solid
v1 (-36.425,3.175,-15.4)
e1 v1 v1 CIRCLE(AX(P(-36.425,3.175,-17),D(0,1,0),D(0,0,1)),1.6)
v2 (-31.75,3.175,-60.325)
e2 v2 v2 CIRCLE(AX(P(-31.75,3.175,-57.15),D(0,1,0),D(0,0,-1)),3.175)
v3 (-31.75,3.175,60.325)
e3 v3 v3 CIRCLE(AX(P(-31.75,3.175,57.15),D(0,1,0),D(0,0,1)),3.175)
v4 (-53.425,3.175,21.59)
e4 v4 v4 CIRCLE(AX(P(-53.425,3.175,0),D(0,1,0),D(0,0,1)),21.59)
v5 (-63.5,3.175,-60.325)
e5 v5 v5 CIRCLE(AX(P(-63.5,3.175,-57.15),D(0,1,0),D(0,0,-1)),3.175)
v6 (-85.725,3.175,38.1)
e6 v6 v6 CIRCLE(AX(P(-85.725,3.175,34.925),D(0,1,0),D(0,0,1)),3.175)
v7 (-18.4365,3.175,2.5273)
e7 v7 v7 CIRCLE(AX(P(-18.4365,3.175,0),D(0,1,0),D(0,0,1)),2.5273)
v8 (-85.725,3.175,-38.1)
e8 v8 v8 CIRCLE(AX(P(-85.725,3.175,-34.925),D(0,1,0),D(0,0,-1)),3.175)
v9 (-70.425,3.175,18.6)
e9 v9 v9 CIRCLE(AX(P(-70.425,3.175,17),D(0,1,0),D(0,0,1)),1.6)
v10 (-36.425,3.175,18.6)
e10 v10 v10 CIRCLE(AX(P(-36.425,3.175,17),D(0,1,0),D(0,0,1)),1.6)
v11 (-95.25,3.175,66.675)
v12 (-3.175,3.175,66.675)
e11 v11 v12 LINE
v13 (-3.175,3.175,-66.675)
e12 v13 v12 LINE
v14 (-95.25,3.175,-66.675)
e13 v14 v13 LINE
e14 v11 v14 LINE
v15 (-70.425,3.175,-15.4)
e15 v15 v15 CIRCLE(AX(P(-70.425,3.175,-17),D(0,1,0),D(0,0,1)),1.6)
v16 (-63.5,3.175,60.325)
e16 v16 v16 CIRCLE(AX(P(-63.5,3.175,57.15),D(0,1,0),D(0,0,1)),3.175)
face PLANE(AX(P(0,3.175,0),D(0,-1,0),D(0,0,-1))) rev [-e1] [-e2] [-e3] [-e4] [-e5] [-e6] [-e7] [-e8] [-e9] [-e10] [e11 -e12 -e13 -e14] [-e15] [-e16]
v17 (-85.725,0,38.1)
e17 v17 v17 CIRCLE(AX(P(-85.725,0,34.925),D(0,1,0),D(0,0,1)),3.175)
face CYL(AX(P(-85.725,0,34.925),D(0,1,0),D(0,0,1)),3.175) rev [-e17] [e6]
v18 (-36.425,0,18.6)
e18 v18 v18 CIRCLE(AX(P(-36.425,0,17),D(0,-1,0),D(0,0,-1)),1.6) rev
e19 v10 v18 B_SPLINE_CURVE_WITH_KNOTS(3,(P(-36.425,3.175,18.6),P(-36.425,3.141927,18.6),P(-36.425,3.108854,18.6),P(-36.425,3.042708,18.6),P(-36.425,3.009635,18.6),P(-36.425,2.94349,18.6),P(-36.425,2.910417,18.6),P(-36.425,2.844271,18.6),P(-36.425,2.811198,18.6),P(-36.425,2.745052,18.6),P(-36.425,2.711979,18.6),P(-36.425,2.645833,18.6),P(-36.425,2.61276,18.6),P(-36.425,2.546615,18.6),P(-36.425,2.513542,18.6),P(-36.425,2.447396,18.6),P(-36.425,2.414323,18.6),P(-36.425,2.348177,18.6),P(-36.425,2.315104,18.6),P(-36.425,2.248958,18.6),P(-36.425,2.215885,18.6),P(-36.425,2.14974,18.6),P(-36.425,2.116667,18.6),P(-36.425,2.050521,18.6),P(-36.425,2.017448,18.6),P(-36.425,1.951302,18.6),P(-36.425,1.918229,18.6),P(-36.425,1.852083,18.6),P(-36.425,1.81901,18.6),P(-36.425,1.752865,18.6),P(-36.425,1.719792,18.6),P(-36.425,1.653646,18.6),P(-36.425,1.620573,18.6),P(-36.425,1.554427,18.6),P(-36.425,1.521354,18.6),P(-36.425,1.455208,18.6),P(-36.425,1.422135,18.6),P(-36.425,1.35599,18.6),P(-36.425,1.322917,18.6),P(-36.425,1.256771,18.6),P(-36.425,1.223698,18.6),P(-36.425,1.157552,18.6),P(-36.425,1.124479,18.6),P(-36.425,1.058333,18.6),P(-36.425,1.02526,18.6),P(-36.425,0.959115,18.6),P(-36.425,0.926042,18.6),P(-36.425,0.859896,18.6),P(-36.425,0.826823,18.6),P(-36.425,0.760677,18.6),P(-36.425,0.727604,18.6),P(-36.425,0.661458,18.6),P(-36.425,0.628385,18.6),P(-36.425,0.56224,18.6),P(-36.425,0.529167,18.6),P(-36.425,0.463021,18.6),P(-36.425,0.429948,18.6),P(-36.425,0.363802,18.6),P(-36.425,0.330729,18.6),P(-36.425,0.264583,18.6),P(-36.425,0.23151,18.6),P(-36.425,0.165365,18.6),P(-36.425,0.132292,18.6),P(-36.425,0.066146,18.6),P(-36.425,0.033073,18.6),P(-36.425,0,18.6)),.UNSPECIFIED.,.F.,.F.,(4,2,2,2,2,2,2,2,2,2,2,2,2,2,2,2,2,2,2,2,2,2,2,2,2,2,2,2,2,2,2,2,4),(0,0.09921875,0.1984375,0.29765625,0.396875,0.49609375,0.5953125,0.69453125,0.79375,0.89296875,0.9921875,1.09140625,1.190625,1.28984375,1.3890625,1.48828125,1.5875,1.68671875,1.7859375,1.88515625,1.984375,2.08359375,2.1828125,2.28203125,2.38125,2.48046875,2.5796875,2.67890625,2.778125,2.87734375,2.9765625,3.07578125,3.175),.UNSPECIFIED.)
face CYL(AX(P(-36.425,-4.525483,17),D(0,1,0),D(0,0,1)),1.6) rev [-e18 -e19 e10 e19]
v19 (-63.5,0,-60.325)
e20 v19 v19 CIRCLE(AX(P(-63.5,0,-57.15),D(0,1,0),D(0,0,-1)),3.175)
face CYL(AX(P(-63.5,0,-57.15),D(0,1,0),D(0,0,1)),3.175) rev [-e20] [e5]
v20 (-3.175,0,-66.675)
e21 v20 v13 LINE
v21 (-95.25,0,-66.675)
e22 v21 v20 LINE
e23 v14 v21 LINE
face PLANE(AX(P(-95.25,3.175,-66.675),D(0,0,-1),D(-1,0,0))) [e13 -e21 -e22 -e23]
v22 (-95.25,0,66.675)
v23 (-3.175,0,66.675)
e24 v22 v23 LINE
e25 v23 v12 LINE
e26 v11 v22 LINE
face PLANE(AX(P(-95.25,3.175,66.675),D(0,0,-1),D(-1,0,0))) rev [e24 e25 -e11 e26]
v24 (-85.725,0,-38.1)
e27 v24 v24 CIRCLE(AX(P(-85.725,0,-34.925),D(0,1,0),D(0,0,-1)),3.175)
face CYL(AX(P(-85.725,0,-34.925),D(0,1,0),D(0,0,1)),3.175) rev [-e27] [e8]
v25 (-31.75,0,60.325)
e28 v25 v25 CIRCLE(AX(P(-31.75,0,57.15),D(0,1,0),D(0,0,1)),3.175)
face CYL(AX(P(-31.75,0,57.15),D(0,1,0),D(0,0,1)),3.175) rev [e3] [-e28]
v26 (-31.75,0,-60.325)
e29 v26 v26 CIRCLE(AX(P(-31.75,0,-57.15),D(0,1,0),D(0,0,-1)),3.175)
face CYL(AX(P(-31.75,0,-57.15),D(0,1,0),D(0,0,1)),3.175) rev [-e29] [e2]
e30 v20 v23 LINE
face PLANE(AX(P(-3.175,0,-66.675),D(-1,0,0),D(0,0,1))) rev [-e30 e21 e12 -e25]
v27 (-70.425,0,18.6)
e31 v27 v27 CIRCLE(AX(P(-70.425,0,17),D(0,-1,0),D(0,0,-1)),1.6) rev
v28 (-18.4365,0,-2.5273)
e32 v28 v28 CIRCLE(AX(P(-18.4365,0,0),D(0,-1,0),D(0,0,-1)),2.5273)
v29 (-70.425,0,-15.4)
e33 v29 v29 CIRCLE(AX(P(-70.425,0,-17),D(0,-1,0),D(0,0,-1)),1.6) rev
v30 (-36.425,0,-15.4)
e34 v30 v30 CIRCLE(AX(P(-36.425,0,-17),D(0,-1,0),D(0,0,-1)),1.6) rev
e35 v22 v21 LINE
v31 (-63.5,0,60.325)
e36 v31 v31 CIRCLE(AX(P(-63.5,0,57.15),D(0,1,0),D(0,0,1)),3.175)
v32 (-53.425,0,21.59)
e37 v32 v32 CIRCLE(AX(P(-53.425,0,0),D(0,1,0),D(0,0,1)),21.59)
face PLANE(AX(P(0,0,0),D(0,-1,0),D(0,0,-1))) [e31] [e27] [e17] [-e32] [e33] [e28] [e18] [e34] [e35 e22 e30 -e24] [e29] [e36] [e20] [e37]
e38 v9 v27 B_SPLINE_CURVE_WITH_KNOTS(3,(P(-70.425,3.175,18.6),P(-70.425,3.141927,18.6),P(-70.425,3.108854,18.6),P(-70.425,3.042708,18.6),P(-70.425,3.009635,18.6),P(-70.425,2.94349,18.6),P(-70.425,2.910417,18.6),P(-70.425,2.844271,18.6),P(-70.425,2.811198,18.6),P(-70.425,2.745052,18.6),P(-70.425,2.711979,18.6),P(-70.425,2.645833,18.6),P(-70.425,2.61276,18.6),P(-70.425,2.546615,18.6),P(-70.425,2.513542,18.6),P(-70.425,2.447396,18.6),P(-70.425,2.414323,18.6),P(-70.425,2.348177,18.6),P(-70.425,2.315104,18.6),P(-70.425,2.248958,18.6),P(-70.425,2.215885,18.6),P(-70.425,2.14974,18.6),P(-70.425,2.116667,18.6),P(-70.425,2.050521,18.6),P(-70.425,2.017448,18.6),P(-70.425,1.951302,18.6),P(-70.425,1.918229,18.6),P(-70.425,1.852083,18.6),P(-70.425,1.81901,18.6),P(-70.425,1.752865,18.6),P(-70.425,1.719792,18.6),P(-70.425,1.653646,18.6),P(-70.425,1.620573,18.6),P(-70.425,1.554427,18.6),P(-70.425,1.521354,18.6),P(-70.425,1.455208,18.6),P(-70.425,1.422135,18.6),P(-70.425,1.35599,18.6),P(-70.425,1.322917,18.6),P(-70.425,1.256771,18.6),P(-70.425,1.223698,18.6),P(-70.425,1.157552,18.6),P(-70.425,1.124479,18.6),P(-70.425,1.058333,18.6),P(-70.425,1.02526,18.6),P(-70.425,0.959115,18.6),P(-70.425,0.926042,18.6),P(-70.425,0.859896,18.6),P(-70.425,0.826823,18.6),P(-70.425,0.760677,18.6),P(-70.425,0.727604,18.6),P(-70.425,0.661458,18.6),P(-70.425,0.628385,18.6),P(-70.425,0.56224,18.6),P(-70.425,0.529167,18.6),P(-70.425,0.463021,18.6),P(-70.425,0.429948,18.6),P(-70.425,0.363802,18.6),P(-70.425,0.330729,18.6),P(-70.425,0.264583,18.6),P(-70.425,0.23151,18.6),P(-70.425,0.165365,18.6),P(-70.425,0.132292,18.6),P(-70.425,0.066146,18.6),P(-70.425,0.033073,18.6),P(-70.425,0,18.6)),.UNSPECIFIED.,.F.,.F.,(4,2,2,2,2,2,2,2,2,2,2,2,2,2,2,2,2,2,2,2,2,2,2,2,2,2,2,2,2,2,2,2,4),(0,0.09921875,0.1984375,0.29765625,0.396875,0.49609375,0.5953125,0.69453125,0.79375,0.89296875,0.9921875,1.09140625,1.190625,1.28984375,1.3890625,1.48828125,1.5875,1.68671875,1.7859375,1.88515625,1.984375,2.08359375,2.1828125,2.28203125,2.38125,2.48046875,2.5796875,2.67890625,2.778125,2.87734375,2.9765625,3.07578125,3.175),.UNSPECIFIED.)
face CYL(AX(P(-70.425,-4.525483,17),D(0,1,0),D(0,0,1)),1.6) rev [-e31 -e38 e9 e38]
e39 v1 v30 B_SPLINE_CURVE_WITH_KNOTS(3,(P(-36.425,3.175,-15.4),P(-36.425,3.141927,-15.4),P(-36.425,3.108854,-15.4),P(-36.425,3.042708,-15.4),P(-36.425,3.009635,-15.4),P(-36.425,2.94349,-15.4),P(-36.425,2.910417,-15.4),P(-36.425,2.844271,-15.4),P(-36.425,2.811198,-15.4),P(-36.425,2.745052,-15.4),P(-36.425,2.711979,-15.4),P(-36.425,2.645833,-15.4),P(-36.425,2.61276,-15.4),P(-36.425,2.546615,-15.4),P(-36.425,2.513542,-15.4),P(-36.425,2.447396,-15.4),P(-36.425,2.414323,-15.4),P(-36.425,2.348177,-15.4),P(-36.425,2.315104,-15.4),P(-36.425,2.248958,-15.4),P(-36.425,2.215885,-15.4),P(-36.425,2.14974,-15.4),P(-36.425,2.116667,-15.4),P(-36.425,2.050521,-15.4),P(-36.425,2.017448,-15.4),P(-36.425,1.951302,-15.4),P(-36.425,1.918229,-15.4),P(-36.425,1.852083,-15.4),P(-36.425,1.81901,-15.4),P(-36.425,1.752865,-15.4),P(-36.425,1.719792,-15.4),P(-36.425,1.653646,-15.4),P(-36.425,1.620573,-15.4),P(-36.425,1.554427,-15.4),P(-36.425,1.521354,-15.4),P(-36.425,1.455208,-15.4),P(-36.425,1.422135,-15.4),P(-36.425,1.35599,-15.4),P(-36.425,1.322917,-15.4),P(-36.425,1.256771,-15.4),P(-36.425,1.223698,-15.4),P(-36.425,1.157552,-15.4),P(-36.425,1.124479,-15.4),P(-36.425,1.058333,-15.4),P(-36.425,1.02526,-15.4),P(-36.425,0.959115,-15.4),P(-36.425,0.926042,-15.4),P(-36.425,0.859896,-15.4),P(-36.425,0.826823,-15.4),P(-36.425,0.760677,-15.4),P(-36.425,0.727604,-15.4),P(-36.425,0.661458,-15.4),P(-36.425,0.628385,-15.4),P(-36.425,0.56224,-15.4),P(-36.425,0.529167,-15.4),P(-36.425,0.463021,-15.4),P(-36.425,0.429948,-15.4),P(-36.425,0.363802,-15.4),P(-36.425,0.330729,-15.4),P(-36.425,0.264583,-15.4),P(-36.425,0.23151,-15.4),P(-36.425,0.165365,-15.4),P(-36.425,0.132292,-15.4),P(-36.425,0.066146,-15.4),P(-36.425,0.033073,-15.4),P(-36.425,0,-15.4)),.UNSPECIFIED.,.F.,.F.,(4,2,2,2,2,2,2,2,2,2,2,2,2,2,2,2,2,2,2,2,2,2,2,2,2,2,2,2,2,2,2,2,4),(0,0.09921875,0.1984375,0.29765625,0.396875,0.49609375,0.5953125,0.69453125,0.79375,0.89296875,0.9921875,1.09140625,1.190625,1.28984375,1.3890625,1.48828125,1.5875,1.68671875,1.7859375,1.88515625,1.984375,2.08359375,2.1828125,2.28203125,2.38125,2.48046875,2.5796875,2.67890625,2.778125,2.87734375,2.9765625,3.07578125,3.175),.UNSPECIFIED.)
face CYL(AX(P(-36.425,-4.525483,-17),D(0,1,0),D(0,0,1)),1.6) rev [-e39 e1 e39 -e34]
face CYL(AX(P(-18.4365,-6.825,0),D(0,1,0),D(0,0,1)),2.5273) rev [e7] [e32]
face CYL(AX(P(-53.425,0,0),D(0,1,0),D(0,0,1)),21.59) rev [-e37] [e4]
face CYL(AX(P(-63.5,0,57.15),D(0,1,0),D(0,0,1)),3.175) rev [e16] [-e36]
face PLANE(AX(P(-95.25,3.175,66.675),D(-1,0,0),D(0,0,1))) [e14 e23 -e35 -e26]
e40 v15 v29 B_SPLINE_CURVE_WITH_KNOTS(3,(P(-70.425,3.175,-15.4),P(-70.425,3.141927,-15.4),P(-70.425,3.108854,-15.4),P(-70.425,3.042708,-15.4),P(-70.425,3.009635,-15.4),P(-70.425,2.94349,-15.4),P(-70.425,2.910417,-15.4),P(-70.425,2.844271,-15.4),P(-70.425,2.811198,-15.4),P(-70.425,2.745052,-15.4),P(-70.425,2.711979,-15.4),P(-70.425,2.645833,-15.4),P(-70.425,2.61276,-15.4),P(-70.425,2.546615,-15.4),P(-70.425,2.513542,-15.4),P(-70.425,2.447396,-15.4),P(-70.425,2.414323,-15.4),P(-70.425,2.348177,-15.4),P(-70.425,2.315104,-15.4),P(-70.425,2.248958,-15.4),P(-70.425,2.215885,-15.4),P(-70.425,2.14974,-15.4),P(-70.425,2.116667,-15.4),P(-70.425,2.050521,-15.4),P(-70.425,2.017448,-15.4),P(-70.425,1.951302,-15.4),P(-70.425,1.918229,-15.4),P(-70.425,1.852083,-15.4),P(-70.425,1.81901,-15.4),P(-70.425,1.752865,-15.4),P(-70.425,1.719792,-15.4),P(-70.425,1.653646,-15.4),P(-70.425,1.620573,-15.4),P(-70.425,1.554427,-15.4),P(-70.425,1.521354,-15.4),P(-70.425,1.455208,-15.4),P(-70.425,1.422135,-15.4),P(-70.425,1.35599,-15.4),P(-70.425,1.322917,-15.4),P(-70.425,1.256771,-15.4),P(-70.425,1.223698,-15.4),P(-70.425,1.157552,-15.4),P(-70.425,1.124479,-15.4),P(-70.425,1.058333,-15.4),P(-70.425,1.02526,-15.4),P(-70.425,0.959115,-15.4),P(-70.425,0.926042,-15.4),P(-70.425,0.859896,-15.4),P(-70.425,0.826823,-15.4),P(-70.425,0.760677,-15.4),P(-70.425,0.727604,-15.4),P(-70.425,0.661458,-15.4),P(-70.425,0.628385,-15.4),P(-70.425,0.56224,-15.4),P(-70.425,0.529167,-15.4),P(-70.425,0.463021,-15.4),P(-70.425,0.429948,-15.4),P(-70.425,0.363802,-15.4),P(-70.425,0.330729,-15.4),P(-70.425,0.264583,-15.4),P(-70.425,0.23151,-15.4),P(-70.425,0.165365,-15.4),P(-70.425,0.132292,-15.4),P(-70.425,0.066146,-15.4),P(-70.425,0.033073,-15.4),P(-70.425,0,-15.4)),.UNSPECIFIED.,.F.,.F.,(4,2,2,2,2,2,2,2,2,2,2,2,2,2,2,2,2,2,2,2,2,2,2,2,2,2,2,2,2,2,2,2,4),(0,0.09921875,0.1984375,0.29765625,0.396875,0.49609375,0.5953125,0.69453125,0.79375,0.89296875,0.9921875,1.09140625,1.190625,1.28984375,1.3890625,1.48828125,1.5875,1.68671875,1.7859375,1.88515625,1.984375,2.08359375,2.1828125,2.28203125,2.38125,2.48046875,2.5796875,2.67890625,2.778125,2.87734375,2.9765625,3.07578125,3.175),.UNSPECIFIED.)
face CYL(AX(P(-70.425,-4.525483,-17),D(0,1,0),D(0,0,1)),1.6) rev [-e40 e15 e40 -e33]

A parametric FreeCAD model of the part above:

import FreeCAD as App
import Part
import Sketcher
Q = App.Units.Quantity


def add_polygon(sketch, points):
    """Adds a closed chain of lines whose ends are joined by coincident constraints."""
    first, n = sketch.GeometryCount, len(points)
    for a, b in zip(points, points[1:] + points[:1]):
        sketch.addGeometry(Part.LineSegment(App.Vector(*a, 0), App.Vector(*b, 0)), False)
    for i in range(n):
        sketch.addConstraint(Sketcher.Constraint("Coincident", first + i, 2, first + (i + 1) % n, 1))

doc = App.newDocument("Part")
body = doc.addObject("PartDesign::Body", "Body")

# Sketch on XZ plane
sketch1 = body.newObject("Sketcher::SketchObject", "Sketch")
sketch1.AttachmentSupport = (doc.getObject("XZ_Plane"), [""])
sketch1.MapMode = "FlatFace"
add_polygon(sketch1, [(-95, -67), (-95, 67), (95, 67), (95, -67)])  # lines 0-3
sketch1.addConstraint(Sketcher.Constraint("Vertical", 0))
sketch1.addConstraint(Sketcher.Constraint("Horizontal", 1))
sketch1.addConstraint(Sketcher.Constraint("Vertical", 2))
sketch1.addConstraint(Sketcher.Constraint("Horizontal", 3))
sketch1.addConstraint(Sketcher.Constraint("Symmetric", 0, 2, 2, 2, -1, 1))
sketch1.addConstraint(Sketcher.Constraint("DistanceX", 1, 1, 1, 2, Q("7.5 in")))
sketch1.addConstraint(Sketcher.Constraint("DistanceY", 0, 1, 0, 2, Q("5.25 in")))
pad1 = body.newObject("PartDesign::Pad", "Pad")
pad1.Profile = sketch1
pad1.Length = Q("0.125 in")
pad1.Reversed = True

# Sketch on XZ plane
sketch2 = body.newObject("Sketcher::SketchObject", "Sketch001")
sketch2.AttachmentSupport = (doc.getObject("XZ_Plane"), [""])
sketch2.MapMode = "FlatFace"
sketch2.AttachmentOffset = App.Placement(App.Vector(0, 0, -0.125 * 25.4), App.Rotation())
sketch2.addGeometry(Part.Circle(App.Vector(-53, 0, 0), App.Vector(0, 0, 1), 22), False)
sketch2.addConstraint(Sketcher.Constraint("PointOnObject", 0, 3, -1))
sketch2.addConstraint(Sketcher.Constraint("Diameter", 0, Q("1.7 in")))
sketch2.addConstraint(Sketcher.Constraint("DistanceX", 0, 3, -1, 1, Q("53.425 mm")))
pocket1 = body.newObject("PartDesign::Pocket", "Pocket")
pocket1.Profile = sketch2
pocket1.Type = "ThroughAll"
pocket1.Reversed = True

# Sketch on XZ plane
sketch3 = body.newObject("Sketcher::SketchObject", "Sketch002")
sketch3.AttachmentSupport = (doc.getObject("XZ_Plane"), [""])
sketch3.MapMode = "FlatFace"
sketch3.AttachmentOffset = App.Placement(App.Vector(0, 0, -0.125 * 25.4), App.Rotation())
sketch3.addGeometry(Part.Circle(App.Vector(-70.4, -17, 0), App.Vector(0, 0, 1), 1.6), False)
sketch3.addGeometry(Part.Circle(App.Vector(-36.4, -17, 0), App.Vector(0, 0, 1), 1.6), False)
sketch3.addGeometry(Part.Circle(App.Vector(-70.4, 17, 0), App.Vector(0, 0, 1), 1.6), False)
sketch3.addGeometry(Part.Circle(App.Vector(-36.4, 17, 0), App.Vector(0, 0, 1), 1.6), False)
sketch3.addConstraint(Sketcher.Constraint("Equal", 0, 1))
sketch3.addConstraint(Sketcher.Constraint("Equal", 1, 2))
sketch3.addConstraint(Sketcher.Constraint("Equal", 2, 3))
sketch3.addConstraint(Sketcher.Constraint("Symmetric", 0, 3, 2, 3, -1))
sketch3.addConstraint(Sketcher.Constraint("Symmetric", 1, 3, 3, 3, -1))
sketch3.addConstraint(Sketcher.Constraint("Horizontal", 0, 3, 1, 3))
sketch3.addConstraint(Sketcher.Constraint("Diameter", 0, Q("3.2 mm")))
sketch3.addConstraint(Sketcher.Constraint("DistanceX", 0, 3, -1, 1, Q("70.425 mm")))
sketch3.addConstraint(Sketcher.Constraint("DistanceY", 0, 3, -1, 1, Q("17 mm")))
sketch3.addConstraint(Sketcher.Constraint("DistanceX", 1, 3, -1, 1, Q("36.425 mm")))
pocket2 = body.newObject("PartDesign::Pocket", "Pocket001")
pocket2.Profile = sketch3
pocket2.Length = Q("0.125 in")
pocket2.Reversed = True

# Sketch on XZ plane
sketch4 = body.newObject("Sketcher::SketchObject", "Sketch003")
sketch4.AttachmentSupport = (doc.getObject("XZ_Plane"), [""])
sketch4.MapMode = "FlatFace"
sketch4.AttachmentOffset = App.Placement(App.Vector(0, 0, -0.125 * 25.4), App.Rotation())
sketch4.addGeometry(Part.Circle(App.Vector(-18.4, 0, 0), App.Vector(0, 0, 1), 2.5), False)
sketch4.addConstraint(Sketcher.Constraint("PointOnObject", 0, 3, -1))
sketch4.addConstraint(Sketcher.Constraint("Diameter", 0, Q("0.199 in")))
sketch4.addConstraint(Sketcher.Constraint("DistanceX", 0, 3, -1, 1, Q("18.4365 mm")))
pocket3 = body.newObject("PartDesign::Pocket", "Pocket002")
pocket3.Profile = sketch4
pocket3.Length = 10
pocket3.Reversed = True

# Sketch on XZ plane
sketch5 = body.newObject("Sketcher::SketchObject", "Sketch004")
sketch5.AttachmentSupport = (doc.getObject("XZ_Plane"), [""])
sketch5.MapMode = "FlatFace"
sketch5.AttachmentOffset = App.Placement(App.Vector(0, 0, -0.125 * 25.4), App.Rotation())
add_polygon(sketch5, [(-3, -67), (-3, 67), (95, 67), (95, -67)])  # lines 0-3
sketch5.addConstraint(Sketcher.Constraint("Vertical", 0))
sketch5.addConstraint(Sketcher.Constraint("Horizontal", 1))
sketch5.addConstraint(Sketcher.Constraint("Vertical", 2))
sketch5.addConstraint(Sketcher.Constraint("Horizontal", 3))
sketch5.addConstraint(Sketcher.Constraint("DistanceY", 0, 1, 0, 2, Q("5.25 in")))
sketch5.addConstraint(Sketcher.Constraint("DistanceX", 1, 1, 1, 2, Q("3.875 in")))
sketch5.addConstraint(Sketcher.Constraint("DistanceX", -1, 1, 1, 2, Q("3.75 in")))
sketch5.addConstraint(Sketcher.Constraint("DistanceY", -1, 1, 0, 2, Q("2.625 in")))
pocket4 = body.newObject("PartDesign::Pocket", "Pocket003")
pocket4.Profile = sketch5
pocket4.Type = "ThroughAll"
pocket4.Reversed = True

# Sketch on XZ plane
sketch6 = body.newObject("Sketcher::SketchObject", "Sketch005")
sketch6.AttachmentSupport = (doc.getObject("XZ_Plane"), [""])
sketch6.MapMode = "FlatFace"
sketch6.AttachmentOffset = App.Placement(App.Vector(0, 0, -0.125 * 25.4), App.Rotation())
sketch6.addGeometry(Part.Circle(App.Vector(-63.5, 57.1, 0), App.Vector(0, 0, 1), 3.2), False)
sketch6.addGeometry(Part.Circle(App.Vector(-31.8, 57.1, 0), App.Vector(0, 0, 1), 3.2), False)
sketch6.addGeometry(Part.Circle(App.Vector(-85.7, 34.9, 0), App.Vector(0, 0, 1), 3.2), False)
sketch6.addGeometry(Part.Circle(App.Vector(-85.7, -34.9, 0), App.Vector(0, 0, 1), 3.2), False)
sketch6.addGeometry(Part.Circle(App.Vector(-31.8, -57.1, 0), App.Vector(0, 0, 1), 3.2), False)
sketch6.addGeometry(Part.Circle(App.Vector(-63.5, -57.1, 0), App.Vector(0, 0, 1), 3.2), False)
sketch6.addConstraint(Sketcher.Constraint("Equal", 0, 1))
sketch6.addConstraint(Sketcher.Constraint("Equal", 1, 2))
sketch6.addConstraint(Sketcher.Constraint("Equal", 2, 3))
sketch6.addConstraint(Sketcher.Constraint("Equal", 3, 4))
sketch6.addConstraint(Sketcher.Constraint("Equal", 4, 5))
sketch6.addConstraint(Sketcher.Constraint("Symmetric", 2, 3, 3, 3, -1))
sketch6.addConstraint(Sketcher.Constraint("Symmetric", 1, 3, 4, 3, -1))
sketch6.addConstraint(Sketcher.Constraint("Symmetric", 0, 3, 5, 3, -1))
sketch6.addConstraint(Sketcher.Constraint("Horizontal", 0, 3, 1, 3))
sketch6.addConstraint(Sketcher.Constraint("Diameter", 0, Q("0.25 in")))
sketch6.addConstraint(Sketcher.Constraint("DistanceX", 0, 3, -1, 1, Q("2.5 in")))
sketch6.addConstraint(Sketcher.Constraint("DistanceY", 4, 3, 1, 3, Q("4.5 in")))
sketch6.addConstraint(Sketcher.Constraint("DistanceX", 1, 3, -1, 1, Q("1.25 in")))
sketch6.addConstraint(Sketcher.Constraint("DistanceY", 3, 3, 2, 3, Q("2.75 in")))
sketch6.addConstraint(Sketcher.Constraint("DistanceX", 2, 3, -1, 1, Q("3.375 in")))
pocket5 = body.newObject("PartDesign::Pocket", "Pocket004")
pocket5.Profile = sketch6
pocket5.Type = "ThroughAll"
pocket5.Reversed = True

doc.recompute()
